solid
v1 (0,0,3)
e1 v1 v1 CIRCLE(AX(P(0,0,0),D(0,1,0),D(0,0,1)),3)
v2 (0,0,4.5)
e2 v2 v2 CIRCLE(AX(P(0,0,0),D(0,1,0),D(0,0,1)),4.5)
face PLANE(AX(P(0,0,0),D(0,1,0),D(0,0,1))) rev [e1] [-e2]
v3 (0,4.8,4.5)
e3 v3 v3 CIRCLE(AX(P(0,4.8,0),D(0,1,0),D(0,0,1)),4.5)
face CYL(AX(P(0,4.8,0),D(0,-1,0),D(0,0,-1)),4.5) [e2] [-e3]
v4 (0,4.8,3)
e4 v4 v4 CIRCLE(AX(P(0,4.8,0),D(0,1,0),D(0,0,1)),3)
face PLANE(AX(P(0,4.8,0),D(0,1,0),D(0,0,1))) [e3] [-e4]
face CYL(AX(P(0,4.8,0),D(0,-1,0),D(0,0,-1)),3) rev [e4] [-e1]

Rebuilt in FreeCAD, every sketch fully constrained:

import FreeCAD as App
import Part
import Sketcher

V = App.Vector
Q = App.Units.Quantity

doc = App.newDocument("Part")
body = doc.addObject("PartDesign::Body", "Body")

# Sketch on XZ plane
sketch1 = body.newObject("Sketcher::SketchObject", "Sketch")
sketch1.AttachmentSupport = (doc.getObject("XZ_Plane"), [""])
sketch1.MapMode = "FlatFace"
sketch1.addGeometry(Part.Circle(V(0, 0, 0), V(0, 0, 1), 4.5), False)
sketch1.addGeometry(Part.Circle(V(0, 0, 0), V(0, 0, 1), 3), False)
sketch1.addConstraint(Sketcher.Constraint("Coincident", 0, 3, -1, 1))
sketch1.addConstraint(Sketcher.Constraint("Coincident", 1, 3, -1, 1))
sketch1.addConstraint(Sketcher.Constraint("Diameter", 0, Q("9 mm")))
sketch1.addConstraint(Sketcher.Constraint("Diameter", 1, Q("6 mm")))
pad1 = body.newObject("PartDesign::Pad", "Pad")
pad1.Profile = sketch1
pad1.Length = 4.8
pad1.Reversed = True

doc.recompute()
